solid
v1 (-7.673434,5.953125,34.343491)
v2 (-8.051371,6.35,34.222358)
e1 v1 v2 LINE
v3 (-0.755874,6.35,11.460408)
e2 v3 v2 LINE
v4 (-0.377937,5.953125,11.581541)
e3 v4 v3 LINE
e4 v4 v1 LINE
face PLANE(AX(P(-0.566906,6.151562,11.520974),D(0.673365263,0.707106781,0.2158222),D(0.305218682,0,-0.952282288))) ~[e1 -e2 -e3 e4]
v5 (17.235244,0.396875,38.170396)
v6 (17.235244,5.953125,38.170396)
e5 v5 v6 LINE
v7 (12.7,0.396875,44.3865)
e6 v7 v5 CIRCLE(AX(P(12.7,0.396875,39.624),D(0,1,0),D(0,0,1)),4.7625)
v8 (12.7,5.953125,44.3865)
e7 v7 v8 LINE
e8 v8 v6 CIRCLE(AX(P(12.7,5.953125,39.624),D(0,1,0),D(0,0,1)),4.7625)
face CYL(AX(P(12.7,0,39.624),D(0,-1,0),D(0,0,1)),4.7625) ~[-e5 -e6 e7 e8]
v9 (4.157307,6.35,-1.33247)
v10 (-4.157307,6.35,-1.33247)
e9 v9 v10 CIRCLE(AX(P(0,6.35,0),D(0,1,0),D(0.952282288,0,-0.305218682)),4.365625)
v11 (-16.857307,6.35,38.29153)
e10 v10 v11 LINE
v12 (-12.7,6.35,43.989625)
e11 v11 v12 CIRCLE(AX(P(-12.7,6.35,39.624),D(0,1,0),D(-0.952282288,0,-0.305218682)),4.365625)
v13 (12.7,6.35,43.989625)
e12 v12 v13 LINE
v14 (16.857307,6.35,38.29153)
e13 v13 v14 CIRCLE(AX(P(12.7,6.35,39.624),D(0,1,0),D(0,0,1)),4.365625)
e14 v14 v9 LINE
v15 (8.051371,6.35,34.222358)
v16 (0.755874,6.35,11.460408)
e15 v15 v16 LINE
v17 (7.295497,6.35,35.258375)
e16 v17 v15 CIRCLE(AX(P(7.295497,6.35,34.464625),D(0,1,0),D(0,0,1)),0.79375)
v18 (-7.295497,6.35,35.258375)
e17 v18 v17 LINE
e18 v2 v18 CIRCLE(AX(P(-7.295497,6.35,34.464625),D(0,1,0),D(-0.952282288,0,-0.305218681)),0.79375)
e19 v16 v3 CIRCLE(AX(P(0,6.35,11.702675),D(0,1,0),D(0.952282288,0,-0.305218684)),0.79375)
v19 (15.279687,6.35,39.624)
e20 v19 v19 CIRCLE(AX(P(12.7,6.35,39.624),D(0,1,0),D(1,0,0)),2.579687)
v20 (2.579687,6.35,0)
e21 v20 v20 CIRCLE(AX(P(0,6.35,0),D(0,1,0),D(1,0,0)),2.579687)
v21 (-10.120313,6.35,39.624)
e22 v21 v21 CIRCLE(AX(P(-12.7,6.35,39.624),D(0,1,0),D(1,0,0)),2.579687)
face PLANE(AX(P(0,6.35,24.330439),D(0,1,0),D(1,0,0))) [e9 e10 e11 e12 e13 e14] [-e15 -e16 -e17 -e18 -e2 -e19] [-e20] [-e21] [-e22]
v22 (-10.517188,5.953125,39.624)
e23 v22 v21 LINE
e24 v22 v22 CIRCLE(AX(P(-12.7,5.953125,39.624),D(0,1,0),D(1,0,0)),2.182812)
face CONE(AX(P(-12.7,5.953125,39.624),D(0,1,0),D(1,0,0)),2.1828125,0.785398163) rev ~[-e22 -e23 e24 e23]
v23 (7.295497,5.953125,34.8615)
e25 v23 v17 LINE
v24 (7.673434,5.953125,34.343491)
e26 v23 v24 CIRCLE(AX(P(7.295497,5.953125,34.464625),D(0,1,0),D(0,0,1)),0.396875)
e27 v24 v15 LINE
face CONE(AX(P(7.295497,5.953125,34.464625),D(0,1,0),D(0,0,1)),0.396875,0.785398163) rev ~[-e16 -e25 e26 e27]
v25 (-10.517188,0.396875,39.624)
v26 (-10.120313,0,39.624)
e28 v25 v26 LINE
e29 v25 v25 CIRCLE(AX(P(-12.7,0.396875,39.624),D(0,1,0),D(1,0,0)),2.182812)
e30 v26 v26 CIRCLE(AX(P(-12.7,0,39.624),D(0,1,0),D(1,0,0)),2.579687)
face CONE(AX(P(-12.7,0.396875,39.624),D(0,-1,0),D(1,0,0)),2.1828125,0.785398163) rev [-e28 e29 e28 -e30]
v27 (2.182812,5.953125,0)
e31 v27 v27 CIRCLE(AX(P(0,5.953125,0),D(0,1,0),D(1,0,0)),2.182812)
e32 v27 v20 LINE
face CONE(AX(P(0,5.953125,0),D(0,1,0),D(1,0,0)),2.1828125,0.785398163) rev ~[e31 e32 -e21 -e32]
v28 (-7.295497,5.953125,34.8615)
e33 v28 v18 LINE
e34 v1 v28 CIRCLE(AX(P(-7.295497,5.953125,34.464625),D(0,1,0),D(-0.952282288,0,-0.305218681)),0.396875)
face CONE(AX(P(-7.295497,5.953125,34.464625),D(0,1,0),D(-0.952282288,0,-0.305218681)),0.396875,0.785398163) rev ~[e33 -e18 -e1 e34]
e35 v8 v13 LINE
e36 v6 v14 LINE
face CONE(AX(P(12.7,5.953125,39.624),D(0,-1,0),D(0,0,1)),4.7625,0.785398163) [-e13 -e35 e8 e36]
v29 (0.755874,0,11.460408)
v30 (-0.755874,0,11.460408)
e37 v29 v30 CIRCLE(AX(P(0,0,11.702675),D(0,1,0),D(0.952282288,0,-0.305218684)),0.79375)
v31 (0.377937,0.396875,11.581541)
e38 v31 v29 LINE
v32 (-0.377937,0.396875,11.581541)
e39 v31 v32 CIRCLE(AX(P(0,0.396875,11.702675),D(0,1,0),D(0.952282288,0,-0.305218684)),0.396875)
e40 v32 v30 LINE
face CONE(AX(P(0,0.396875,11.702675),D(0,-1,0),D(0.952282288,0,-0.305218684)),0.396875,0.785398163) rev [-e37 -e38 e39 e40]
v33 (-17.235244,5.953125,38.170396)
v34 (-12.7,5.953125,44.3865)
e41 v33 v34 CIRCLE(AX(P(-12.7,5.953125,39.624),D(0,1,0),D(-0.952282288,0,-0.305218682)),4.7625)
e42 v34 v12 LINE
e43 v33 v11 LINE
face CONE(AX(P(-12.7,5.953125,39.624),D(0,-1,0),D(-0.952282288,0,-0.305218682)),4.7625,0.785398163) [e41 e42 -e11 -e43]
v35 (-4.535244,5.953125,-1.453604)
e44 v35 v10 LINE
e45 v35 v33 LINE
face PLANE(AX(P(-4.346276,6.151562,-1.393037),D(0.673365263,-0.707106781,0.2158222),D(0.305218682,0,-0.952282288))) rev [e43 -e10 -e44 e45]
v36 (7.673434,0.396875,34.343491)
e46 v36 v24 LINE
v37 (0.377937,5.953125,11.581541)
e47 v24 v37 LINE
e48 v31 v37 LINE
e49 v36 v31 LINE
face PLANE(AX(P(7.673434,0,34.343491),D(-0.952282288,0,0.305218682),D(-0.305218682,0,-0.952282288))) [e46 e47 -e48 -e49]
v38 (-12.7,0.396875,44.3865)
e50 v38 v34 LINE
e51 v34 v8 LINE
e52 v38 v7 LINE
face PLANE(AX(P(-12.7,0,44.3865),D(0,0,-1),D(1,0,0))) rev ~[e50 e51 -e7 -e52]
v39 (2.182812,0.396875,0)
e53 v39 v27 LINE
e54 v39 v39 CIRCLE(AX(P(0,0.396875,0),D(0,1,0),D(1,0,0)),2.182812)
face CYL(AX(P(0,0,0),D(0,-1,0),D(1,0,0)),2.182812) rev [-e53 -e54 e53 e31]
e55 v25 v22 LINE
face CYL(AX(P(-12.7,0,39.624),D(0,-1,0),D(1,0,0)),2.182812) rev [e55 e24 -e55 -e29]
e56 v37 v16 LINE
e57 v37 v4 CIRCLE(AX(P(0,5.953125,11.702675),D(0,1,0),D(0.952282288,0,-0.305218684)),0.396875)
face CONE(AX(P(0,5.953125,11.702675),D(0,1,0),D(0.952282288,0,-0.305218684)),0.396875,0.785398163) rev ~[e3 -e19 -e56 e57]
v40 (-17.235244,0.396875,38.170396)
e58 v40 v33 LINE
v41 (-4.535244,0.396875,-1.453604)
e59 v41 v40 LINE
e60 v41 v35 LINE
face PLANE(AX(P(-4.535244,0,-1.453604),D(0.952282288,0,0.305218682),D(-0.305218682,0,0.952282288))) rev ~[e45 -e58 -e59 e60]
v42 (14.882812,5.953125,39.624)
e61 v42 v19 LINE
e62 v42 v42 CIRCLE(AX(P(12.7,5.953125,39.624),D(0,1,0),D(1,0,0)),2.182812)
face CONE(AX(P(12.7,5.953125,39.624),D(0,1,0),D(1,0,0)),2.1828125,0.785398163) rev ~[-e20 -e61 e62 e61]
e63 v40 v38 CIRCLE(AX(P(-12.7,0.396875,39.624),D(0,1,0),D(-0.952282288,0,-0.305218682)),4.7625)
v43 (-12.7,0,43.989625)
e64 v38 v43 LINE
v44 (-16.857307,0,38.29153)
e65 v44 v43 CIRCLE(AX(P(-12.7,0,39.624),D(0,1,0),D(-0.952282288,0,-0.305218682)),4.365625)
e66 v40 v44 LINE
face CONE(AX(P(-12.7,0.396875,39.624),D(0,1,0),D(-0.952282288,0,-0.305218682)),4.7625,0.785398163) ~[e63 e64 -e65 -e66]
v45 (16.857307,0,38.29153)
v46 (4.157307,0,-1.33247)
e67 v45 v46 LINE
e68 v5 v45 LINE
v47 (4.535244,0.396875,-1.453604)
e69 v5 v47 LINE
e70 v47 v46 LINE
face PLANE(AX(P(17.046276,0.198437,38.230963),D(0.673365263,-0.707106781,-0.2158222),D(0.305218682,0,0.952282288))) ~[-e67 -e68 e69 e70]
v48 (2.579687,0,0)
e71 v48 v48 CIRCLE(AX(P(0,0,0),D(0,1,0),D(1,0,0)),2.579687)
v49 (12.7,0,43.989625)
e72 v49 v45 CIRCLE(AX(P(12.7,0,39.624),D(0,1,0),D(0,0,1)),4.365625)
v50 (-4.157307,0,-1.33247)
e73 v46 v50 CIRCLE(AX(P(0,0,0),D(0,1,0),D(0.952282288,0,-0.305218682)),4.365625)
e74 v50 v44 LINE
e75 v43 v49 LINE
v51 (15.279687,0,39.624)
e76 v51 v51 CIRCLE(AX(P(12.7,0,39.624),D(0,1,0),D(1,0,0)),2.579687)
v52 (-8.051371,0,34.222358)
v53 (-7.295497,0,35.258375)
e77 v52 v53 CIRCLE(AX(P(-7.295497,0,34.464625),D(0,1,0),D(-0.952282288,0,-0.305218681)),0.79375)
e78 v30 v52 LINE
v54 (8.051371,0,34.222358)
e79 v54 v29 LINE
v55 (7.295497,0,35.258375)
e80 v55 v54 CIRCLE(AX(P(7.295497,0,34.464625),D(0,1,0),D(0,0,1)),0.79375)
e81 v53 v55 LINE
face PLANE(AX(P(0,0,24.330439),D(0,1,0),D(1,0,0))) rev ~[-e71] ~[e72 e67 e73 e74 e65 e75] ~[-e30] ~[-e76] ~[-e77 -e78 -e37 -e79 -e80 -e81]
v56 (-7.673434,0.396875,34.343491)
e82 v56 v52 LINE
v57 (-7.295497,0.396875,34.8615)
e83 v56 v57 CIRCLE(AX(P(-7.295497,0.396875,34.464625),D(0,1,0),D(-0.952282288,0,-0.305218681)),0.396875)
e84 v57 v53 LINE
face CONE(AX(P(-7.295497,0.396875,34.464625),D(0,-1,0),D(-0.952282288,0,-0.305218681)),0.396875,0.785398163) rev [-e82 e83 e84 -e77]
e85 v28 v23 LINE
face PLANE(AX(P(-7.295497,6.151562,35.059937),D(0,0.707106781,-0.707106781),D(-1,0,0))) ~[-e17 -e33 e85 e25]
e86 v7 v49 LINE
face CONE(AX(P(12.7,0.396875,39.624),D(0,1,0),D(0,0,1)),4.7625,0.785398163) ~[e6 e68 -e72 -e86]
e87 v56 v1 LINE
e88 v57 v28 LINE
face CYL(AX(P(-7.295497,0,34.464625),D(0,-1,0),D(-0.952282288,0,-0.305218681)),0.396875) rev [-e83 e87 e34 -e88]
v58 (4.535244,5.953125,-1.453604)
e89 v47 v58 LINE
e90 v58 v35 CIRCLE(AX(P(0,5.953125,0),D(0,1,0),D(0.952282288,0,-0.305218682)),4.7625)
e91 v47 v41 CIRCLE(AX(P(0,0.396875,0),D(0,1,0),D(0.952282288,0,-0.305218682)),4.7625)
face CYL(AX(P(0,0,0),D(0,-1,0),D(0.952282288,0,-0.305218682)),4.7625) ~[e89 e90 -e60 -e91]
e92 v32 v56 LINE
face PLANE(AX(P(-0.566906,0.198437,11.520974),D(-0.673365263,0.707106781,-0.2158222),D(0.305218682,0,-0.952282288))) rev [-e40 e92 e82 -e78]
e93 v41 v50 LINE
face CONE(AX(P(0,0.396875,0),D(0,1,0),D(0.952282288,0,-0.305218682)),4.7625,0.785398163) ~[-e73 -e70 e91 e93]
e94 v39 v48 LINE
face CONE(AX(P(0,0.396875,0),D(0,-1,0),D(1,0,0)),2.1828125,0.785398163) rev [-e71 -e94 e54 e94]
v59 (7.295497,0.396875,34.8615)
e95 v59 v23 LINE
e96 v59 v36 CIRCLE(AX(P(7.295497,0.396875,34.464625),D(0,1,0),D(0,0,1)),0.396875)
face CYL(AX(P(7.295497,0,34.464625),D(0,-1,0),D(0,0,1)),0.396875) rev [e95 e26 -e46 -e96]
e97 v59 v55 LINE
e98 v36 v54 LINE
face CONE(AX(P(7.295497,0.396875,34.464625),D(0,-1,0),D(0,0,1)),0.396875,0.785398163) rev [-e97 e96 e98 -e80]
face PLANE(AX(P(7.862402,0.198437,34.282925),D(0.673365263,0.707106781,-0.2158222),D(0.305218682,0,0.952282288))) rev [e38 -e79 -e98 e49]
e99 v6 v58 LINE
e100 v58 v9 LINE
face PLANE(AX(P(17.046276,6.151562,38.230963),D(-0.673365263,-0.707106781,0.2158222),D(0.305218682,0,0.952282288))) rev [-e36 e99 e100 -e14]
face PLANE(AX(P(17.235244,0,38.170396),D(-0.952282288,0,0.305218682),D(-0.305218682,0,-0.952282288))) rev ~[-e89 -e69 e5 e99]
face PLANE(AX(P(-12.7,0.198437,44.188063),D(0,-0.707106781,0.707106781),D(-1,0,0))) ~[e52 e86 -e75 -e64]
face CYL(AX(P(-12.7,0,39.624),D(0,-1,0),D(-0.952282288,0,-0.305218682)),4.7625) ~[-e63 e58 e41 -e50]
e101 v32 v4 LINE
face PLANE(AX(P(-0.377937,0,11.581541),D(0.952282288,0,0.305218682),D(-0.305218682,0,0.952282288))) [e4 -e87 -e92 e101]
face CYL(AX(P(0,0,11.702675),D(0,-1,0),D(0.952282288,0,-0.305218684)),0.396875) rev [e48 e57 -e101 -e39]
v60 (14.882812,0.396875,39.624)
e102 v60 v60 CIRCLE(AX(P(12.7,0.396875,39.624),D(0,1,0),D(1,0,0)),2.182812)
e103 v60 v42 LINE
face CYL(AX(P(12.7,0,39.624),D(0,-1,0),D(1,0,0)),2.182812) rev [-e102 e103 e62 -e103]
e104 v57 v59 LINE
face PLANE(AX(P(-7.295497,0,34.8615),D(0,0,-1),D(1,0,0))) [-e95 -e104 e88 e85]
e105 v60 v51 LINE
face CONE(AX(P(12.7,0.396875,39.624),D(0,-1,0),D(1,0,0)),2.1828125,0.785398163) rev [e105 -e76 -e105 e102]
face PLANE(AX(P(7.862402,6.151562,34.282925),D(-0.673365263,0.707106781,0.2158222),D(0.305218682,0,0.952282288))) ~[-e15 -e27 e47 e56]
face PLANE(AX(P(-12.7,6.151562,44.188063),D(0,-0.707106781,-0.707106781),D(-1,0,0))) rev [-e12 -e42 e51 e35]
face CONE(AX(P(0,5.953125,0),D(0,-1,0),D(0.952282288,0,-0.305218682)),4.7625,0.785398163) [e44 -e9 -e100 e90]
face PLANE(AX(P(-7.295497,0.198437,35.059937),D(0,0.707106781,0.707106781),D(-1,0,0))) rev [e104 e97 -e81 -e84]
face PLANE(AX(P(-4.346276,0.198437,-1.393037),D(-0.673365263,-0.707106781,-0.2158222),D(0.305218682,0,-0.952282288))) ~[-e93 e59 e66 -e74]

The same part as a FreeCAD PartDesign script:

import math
import FreeCAD as App
import Part
import Sketcher
from FreeCAD import Vector
Q = App.Units.Quantity


def edges_at(feature, points):
    """Names of the edges that pass closest to the given points."""
    edges = feature.Shape.Edges
    near = lambda p: min(range(len(edges)), key=lambda i: edges[i].distToShape(Part.Vertex(*p))[0])
    return sorted({f"Edge{near(p) + 1}" for p in points})

doc = App.newDocument("Part")
body = doc.addObject("PartDesign::Body", "Body")

# Sketch on XZ plane
sketch1 = body.newObject("Sketcher::SketchObject", "Sketch")
sketch1.AttachmentSupport = (doc.getObject("XZ_Plane"), [""])
sketch1.MapMode = "FlatFace"
sketch1.addGeometry([
    Part.LineSegment(Vector(-4.54, -1.45, 0), Vector(-17.24, 38.17, 0)),  # 0
    Part.ArcOfCircle(Part.Circle(Vector(-12.7, 39.62, 0), Vector(0, 0, 1), 4.76), math.radians(90), math.radians(198)),  # 1
    Part.LineSegment(Vector(-12.7, 44.39, 0), Vector(12.7, 44.39, 0)),  # 2
    Part.ArcOfCircle(Part.Circle(Vector(12.7, 39.62, 0), Vector(0, 0, 1), 4.76), math.radians(-18), math.radians(90)),  # 3
    Part.LineSegment(Vector(17.24, 38.17, 0), Vector(4.54, -1.45, 0)),  # 4
    Part.ArcOfCircle(Part.Circle(Vector(0, 0, 0), Vector(0, 0, 1), 4.76), math.radians(-162), math.radians(-18)),  # 5
    Part.Circle(Vector(-12.7, 39.62, 0), Vector(0, 0, 1), 2.18),  # 6
    Part.Circle(Vector(12.7, 39.62, 0), Vector(0, 0, 1), 2.18),  # 7
    Part.LineSegment(Vector(-7.67, 34.34, 0), Vector(-0.38, 11.58, 0)),  # 8
    Part.ArcOfCircle(Part.Circle(Vector(0, 11.7, 0), Vector(0, 0, 1), 0.4), math.radians(-162), math.radians(-18)),  # 9
    Part.LineSegment(Vector(0.38, 11.58, 0), Vector(7.67, 34.34, 0)),  # 10
    Part.ArcOfCircle(Part.Circle(Vector(7.3, 34.46, 0), Vector(0, 0, 1), 0.4), math.radians(-18), math.radians(90)),  # 11
    Part.LineSegment(Vector(7.3, 34.86, 0), Vector(-7.3, 34.86, 0)),  # 12
    Part.ArcOfCircle(Part.Circle(Vector(-7.3, 34.46, 0), Vector(0, 0, 1), 0.4), math.radians(90), math.radians(198)),  # 13
    Part.Circle(Vector(0, 0, 0), Vector(0, 0, 1), 2.18),  # 14
], False)
sketch1.addConstraint([
    Sketcher.Constraint("Tangent", 0, 2, 1, 2),
    Sketcher.Constraint("Tangent", 1, 1, 2, 1),
    Sketcher.Constraint("Tangent", 2, 2, 3, 2),
    Sketcher.Constraint("Tangent", 3, 1, 4, 1),
    Sketcher.Constraint("Tangent", 4, 2, 5, 2),
    Sketcher.Constraint("Tangent", 5, 1, 0, 1),
    Sketcher.Constraint("Tangent", 8, 2, 9, 1),
    Sketcher.Constraint("Tangent", 9, 2, 10, 1),
    Sketcher.Constraint("Tangent", 10, 2, 11, 1),
    Sketcher.Constraint("Tangent", 11, 2, 12, 1),
    Sketcher.Constraint("Tangent", 12, 2, 13, 1),
    Sketcher.Constraint("Tangent", 13, 2, 8, 1),
    Sketcher.Constraint("Horizontal", 2),
    Sketcher.Constraint("Horizontal", 12),
    Sketcher.Constraint("Coincident", 5, 3, -1, 1),
    Sketcher.Constraint("Coincident", 14, 3, -1, 1),
    Sketcher.Constraint("Coincident", 6, 3, 1, 3),
    Sketcher.Constraint("Coincident", 7, 3, 3, 3),
    Sketcher.Constraint("Equal", 1, 3),
    Sketcher.Constraint("Equal", 3, 5),
    Sketcher.Constraint("Equal", 6, 7),
    Sketcher.Constraint("Equal", 9, 11),
    Sketcher.Constraint("Equal", 11, 13),
    Sketcher.Constraint("Equal", 7, 14),
    Sketcher.Constraint("Symmetric", 8, 2, 9, 2, -2),
    Sketcher.Constraint("Parallel", 0, 8),
    Sketcher.Constraint("Parallel", 4, 10),
    Sketcher.Constraint("DistanceX", 2, 1, 2, 2, Q("1 in")),
    Sketcher.Constraint("Diameter", 6, Q("0.171875 in")),
    Sketcher.Constraint("Radius", 1, Q("0.1875 in")),
    Sketcher.Constraint("Radius", 9, Q("0.015625 in")),
    Sketcher.Constraint("DistanceY", -1, 1, 1, 3, Q("1.56 in")),
    Sketcher.Constraint("DistanceY", 11, 3, 3, 3, Q("0.203125 in")),
    Sketcher.Constraint("DistanceX", 12, 2, 12, 1, 14.590994),
])
pad1 = body.newObject("PartDesign::Pad", "Pad")
pad1.Profile = sketch1
pad1.Length = Q("0.25 in")
pad1.Reversed = True
doc.recompute()

chamfer = body.newObject("PartDesign::Chamfer", "Chamfer")
chamfer.Base = (pad1, edges_at(pad1, [
    (-16.547, 6.35, 42.431),
    (0, 6.35, 44.386),
    (-2.183, 0, 0),
    (-2.183, 6.35, 0),
    (10.517, 0, 39.624),
    (16.547, 6.35, 42.431),
    (10.517, 6.35, 39.624),
    (-14.883, 0, 39.624),
    (10.885, 6.35, 18.358),
    (-14.883, 6.35, 39.624),
    (7.616, 0, 34.699),
    (4.026, 0, 22.963),
    (0, 0, 11.306),
    (-4.026, 0, 22.963),
    (-7.616, 0, 34.699),
    (0, 0, 34.861),
    (7.616, 6.35, 34.699),
    (4.026, 6.35, 22.963),
    (0, 6.35, 11.306),
    (-4.026, 6.35, 22.963),
    (-7.616, 6.35, 34.699),
    (0, 6.35, 34.861),
    (0, 6.35, -4.763),
    (10.885, 0, 18.358),
    (16.547, 0, 42.431),
    (0, 0, 44.386),
    (-16.547, 0, 42.431),
    (-10.885, 0, 18.358),
    (0, 0, -4.763),
    (-10.885, 6.35, 18.358),
]))
chamfer.Size = Q("0.015625 in")

doc.recompute()
